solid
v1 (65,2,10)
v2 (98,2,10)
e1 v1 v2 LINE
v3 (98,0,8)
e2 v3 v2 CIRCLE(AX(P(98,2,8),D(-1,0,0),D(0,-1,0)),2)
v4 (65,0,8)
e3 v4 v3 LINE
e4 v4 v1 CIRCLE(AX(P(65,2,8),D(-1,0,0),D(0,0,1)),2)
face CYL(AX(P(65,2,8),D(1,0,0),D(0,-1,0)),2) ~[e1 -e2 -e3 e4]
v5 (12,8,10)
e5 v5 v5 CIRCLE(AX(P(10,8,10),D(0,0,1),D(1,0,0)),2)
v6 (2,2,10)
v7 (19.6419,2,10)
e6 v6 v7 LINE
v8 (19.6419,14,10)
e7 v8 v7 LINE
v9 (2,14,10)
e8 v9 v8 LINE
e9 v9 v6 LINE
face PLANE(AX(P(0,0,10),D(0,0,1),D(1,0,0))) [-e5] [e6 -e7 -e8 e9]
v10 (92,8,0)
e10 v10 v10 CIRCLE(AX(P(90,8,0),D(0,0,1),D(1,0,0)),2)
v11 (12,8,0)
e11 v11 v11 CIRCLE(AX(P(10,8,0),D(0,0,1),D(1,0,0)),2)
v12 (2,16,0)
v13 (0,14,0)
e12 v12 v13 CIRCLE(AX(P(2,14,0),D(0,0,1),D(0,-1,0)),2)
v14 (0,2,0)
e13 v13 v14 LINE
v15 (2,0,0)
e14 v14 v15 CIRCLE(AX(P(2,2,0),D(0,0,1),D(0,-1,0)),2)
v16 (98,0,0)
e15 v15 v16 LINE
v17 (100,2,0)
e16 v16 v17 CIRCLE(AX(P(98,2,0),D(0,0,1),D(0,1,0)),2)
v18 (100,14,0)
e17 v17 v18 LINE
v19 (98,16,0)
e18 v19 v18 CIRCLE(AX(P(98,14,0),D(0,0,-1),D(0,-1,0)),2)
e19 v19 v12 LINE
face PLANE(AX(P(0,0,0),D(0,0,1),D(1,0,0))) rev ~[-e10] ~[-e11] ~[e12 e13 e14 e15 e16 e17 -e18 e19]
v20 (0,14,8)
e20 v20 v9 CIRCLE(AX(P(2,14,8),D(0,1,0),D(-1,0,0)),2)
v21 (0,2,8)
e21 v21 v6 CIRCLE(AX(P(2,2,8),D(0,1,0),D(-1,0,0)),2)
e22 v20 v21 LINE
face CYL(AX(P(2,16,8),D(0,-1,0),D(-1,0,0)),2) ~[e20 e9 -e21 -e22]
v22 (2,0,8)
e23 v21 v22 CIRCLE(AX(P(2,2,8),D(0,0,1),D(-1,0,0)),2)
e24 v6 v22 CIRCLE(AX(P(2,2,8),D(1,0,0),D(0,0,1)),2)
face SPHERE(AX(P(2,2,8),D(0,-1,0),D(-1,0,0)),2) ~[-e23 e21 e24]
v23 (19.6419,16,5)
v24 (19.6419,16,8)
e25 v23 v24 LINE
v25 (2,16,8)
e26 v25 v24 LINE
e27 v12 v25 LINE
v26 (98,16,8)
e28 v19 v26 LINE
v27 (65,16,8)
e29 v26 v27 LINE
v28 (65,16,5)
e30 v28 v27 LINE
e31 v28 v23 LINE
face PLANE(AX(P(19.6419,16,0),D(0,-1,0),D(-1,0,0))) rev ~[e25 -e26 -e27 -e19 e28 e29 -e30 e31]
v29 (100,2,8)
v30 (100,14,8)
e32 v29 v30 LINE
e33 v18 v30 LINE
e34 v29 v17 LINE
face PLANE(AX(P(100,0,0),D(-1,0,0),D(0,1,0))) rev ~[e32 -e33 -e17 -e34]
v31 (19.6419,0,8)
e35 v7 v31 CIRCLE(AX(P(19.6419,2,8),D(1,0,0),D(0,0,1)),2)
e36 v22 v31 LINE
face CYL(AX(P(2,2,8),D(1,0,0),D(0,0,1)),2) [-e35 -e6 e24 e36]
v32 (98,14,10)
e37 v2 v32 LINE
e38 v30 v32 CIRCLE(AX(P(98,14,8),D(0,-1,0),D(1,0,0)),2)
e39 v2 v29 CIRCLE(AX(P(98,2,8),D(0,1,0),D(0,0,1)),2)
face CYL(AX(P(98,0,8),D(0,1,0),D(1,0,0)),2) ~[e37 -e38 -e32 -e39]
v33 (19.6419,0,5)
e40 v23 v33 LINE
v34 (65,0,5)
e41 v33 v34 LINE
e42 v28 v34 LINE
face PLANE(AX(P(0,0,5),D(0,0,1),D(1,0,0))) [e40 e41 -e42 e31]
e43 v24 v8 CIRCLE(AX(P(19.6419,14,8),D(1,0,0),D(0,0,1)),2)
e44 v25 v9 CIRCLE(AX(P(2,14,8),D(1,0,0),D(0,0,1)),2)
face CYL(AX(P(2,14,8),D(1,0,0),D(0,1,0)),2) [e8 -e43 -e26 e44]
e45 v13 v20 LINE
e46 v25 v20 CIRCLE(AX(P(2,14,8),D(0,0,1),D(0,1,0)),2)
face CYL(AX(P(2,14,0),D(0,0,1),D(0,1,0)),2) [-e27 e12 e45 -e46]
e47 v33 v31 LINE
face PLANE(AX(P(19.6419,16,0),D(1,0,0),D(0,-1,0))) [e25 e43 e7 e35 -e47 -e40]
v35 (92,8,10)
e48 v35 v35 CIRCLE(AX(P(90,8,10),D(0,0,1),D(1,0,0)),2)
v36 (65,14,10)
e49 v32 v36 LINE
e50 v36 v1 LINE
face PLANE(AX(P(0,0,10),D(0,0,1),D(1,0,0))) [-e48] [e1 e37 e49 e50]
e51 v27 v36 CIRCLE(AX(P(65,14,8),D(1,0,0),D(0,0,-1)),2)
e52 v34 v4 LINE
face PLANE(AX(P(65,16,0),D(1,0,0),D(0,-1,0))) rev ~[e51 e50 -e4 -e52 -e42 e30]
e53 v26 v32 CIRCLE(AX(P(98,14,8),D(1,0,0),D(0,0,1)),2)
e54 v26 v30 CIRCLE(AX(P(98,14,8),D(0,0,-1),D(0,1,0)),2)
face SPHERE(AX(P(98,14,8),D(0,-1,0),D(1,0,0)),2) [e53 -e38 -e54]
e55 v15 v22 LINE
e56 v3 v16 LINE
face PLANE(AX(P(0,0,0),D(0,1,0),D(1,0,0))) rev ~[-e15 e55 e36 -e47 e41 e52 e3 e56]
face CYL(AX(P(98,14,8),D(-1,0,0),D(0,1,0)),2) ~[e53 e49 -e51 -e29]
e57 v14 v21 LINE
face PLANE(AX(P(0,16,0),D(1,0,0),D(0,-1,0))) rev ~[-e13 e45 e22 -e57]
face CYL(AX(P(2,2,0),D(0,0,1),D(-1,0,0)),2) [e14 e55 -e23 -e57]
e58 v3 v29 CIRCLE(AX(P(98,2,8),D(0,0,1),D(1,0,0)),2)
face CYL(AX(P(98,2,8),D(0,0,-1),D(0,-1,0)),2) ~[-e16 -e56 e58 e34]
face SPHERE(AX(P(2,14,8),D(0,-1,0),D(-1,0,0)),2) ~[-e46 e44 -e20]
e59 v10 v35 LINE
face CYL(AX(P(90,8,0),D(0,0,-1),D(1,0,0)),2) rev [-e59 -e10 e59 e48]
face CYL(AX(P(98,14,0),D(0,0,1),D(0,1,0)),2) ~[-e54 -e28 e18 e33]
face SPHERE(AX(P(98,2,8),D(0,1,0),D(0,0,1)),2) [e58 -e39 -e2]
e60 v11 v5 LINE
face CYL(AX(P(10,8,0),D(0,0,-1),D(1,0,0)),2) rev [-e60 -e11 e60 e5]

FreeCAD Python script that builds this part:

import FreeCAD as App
import Part
import Sketcher
from FreeCAD import Vector


def edges_at(feature, points):
    """Names of the edges that pass closest to the given points."""
    edges = feature.Shape.Edges
    near = lambda p: min(range(len(edges)), key=lambda i: edges[i].distToShape(Part.Vertex(*p))[0])
    return sorted({f"Edge{near(p) + 1}" for p in points})

doc = App.newDocument("Part")
body = doc.addObject("PartDesign::Body", "Body")
body.AllowCompound = True

# Sketch on XY plane
sketch1 = doc.addObject("Sketcher::SketchObject", "Sketch")
body.addObject(sketch1)
sketch1.AttachmentSupport = (doc.XY_Plane, [""])
sketch1.MapMode = "FlatFace"
sketch1.addGeometry([
    Part.LineSegment(Vector(0, 16, 0), Vector(0, 0, 0)),  # 0
    Part.LineSegment(Vector(0, 0, 0), Vector(19.6, 0, 0)),  # 1
    Part.LineSegment(Vector(19.6, 0, 0), Vector(19.6, 16, 0)),  # 2
    Part.LineSegment(Vector(19.6, 16, 0), Vector(0, 16, 0)),  # 3
    Part.Circle(Vector(10, 8, 0), Vector(0, 0, 1), 2),  # 4
    Part.LineSegment(Vector(65, 16, 0), Vector(65, 0, 0)),  # 5
    Part.LineSegment(Vector(65, 0, 0), Vector(100, 0, 0)),  # 6
    Part.LineSegment(Vector(100, 0, 0), Vector(100, 16, 0)),  # 7
    Part.LineSegment(Vector(100, 16, 0), Vector(65, 16, 0)),  # 8
    Part.Circle(Vector(90, 8, 0), Vector(0, 0, 1), 2),  # 9
], False)
sketch1.addConstraint([
    Sketcher.Constraint("Coincident", 0, 2, 1, 1),
    Sketcher.Constraint("Coincident", 1, 2, 2, 1),
    Sketcher.Constraint("Coincident", 2, 2, 3, 1),
    Sketcher.Constraint("Coincident", 3, 2, 0, 1),
    Sketcher.Constraint("Coincident", 5, 2, 6, 1),
    Sketcher.Constraint("Coincident", 6, 2, 7, 1),
    Sketcher.Constraint("Coincident", 7, 2, 8, 1),
    Sketcher.Constraint("Coincident", 8, 2, 5, 1),
    Sketcher.Constraint("Vertical", 0),
    Sketcher.Constraint("Horizontal", 1),
    Sketcher.Constraint("Vertical", 2),
    Sketcher.Constraint("Horizontal", 3),
    Sketcher.Constraint("Vertical", 5),
    Sketcher.Constraint("Horizontal", 6),
    Sketcher.Constraint("Vertical", 7),
    Sketcher.Constraint("Horizontal", 8),
    Sketcher.Constraint("Coincident", 0, 2, -1, 1),
    Sketcher.Constraint("Equal", 4, 9),
    Sketcher.Constraint("PointOnObject", 5, 2, -1),
    Sketcher.Constraint("Horizontal", 4, 3, 9, 3),
    Sketcher.Constraint("Horizontal", 3, 2, 7, 2),
    Sketcher.Constraint("Diameter", 4, 4.0),
    Sketcher.Constraint("DistanceX", 6, 1, 6, 2, 35.0),
    Sketcher.Constraint("DistanceY", 0, 2, 0, 1, 16.0),
    Sketcher.Constraint("DistanceX", -1, 1, 4, 3, 10.0),
    Sketcher.Constraint("DistanceY", -1, 1, 4, 3, 8.0),
    Sketcher.Constraint("DistanceX", -1, 1, 9, 3, 90.0),
    Sketcher.Constraint("DistanceX", -1, 1, 5, 2, 65.0),
    Sketcher.Constraint("DistanceX", 1, 1, 1, 2, 19.642),
])
pad1 = doc.addObject("PartDesign::Pad", "Pad")
body.addObject(pad1)
pad1.Profile = sketch1
pad1.Length = 10

# Sketch on XY plane
sketch2 = doc.addObject("Sketcher::SketchObject", "Sketch001")
body.addObject(sketch2)
sketch2.AttachmentSupport = (doc.XY_Plane, [""])
sketch2.MapMode = "FlatFace"
sketch2.addGeometry([
    Part.LineSegment(Vector(20, 16, 0), Vector(20, 0, 0)),
    Part.LineSegment(Vector(20, 0, 0), Vector(65, 0, 0)),
    Part.LineSegment(Vector(65, 0, 0), Vector(65, 16, 0)),
    Part.LineSegment(Vector(65, 16, 0), Vector(20, 16, 0)),
], False)
sketch2.addConstraint([
    Sketcher.Constraint("Coincident", 0, 2, 1, 1),
    Sketcher.Constraint("Coincident", 1, 2, 2, 1),
    Sketcher.Constraint("Coincident", 2, 2, 3, 1),
    Sketcher.Constraint("Coincident", 3, 2, 0, 1),
    Sketcher.Constraint("Vertical", 0),
    Sketcher.Constraint("Horizontal", 1),
    Sketcher.Constraint("Vertical", 2),
    Sketcher.Constraint("Horizontal", 3),
    Sketcher.Constraint("PointOnObject", 0, 2, -1),
    Sketcher.Constraint("DistanceY", 0, 2, 0, 1, 16.0),
    Sketcher.Constraint("DistanceX", -1, 1, 1, 2, 65.0),
    Sketcher.Constraint("DistanceX", 1, 1, 1, 2, 45.358),
])
pad2 = doc.addObject("PartDesign::Pad", "Pad001")
body.addObject(pad2)
pad2.Profile = sketch2
pad2.Length = 5
doc.recompute()

fillet = doc.addObject("PartDesign::Fillet", "Fillet")
body.addObject(fillet)
fillet.Base = (pad2, edges_at(pad2, [(0, 8, 10)]))
fillet.Radius = 2
doc.recompute()

fillet2 = doc.addObject("PartDesign::Fillet", "Fillet001")
body.addObject(fillet2)
fillet2.Base = (fillet, edges_at(fillet, [(100, 8, 10)]))
fillet2.Radius = 2
doc.recompute()

fillet3 = doc.addObject("PartDesign::Fillet", "Fillet002")
body.addObject(fillet3)
fillet3.Base = (fillet2, edges_at(fillet2, [(0, 16, 4), (0.586, 16, 9.414), (10.821, 16, 10)]))
fillet3.Radius = 2
doc.recompute()

fillet4 = doc.addObject("PartDesign::Fillet", "Fillet003")
body.addObject(fillet4)
fillet4.Base = (fillet3, edges_at(fillet3, [(100, 16, 4), (99.414, 16, 9.414), (81.5, 16, 10)]))
fillet4.Radius = 2
doc.recompute()

fillet5 = doc.addObject("PartDesign::Fillet", "Fillet004")
body.addObject(fillet5)
fillet5.Base = (fillet4, edges_at(fillet4, [(0, 0, 4), (0.586, 0, 9.414), (10.821, 0, 10)]))
fillet5.Radius = 2
doc.recompute()

fillet6 = doc.addObject("PartDesign::Fillet", "Fillet005")
body.addObject(fillet6)
fillet6.Base = (fillet5, edges_at(fillet5, [(81.5, 0, 10), (99.414, 0, 9.414), (100, 0, 4)]))
fillet6.Radius = 2

doc.recompute()
